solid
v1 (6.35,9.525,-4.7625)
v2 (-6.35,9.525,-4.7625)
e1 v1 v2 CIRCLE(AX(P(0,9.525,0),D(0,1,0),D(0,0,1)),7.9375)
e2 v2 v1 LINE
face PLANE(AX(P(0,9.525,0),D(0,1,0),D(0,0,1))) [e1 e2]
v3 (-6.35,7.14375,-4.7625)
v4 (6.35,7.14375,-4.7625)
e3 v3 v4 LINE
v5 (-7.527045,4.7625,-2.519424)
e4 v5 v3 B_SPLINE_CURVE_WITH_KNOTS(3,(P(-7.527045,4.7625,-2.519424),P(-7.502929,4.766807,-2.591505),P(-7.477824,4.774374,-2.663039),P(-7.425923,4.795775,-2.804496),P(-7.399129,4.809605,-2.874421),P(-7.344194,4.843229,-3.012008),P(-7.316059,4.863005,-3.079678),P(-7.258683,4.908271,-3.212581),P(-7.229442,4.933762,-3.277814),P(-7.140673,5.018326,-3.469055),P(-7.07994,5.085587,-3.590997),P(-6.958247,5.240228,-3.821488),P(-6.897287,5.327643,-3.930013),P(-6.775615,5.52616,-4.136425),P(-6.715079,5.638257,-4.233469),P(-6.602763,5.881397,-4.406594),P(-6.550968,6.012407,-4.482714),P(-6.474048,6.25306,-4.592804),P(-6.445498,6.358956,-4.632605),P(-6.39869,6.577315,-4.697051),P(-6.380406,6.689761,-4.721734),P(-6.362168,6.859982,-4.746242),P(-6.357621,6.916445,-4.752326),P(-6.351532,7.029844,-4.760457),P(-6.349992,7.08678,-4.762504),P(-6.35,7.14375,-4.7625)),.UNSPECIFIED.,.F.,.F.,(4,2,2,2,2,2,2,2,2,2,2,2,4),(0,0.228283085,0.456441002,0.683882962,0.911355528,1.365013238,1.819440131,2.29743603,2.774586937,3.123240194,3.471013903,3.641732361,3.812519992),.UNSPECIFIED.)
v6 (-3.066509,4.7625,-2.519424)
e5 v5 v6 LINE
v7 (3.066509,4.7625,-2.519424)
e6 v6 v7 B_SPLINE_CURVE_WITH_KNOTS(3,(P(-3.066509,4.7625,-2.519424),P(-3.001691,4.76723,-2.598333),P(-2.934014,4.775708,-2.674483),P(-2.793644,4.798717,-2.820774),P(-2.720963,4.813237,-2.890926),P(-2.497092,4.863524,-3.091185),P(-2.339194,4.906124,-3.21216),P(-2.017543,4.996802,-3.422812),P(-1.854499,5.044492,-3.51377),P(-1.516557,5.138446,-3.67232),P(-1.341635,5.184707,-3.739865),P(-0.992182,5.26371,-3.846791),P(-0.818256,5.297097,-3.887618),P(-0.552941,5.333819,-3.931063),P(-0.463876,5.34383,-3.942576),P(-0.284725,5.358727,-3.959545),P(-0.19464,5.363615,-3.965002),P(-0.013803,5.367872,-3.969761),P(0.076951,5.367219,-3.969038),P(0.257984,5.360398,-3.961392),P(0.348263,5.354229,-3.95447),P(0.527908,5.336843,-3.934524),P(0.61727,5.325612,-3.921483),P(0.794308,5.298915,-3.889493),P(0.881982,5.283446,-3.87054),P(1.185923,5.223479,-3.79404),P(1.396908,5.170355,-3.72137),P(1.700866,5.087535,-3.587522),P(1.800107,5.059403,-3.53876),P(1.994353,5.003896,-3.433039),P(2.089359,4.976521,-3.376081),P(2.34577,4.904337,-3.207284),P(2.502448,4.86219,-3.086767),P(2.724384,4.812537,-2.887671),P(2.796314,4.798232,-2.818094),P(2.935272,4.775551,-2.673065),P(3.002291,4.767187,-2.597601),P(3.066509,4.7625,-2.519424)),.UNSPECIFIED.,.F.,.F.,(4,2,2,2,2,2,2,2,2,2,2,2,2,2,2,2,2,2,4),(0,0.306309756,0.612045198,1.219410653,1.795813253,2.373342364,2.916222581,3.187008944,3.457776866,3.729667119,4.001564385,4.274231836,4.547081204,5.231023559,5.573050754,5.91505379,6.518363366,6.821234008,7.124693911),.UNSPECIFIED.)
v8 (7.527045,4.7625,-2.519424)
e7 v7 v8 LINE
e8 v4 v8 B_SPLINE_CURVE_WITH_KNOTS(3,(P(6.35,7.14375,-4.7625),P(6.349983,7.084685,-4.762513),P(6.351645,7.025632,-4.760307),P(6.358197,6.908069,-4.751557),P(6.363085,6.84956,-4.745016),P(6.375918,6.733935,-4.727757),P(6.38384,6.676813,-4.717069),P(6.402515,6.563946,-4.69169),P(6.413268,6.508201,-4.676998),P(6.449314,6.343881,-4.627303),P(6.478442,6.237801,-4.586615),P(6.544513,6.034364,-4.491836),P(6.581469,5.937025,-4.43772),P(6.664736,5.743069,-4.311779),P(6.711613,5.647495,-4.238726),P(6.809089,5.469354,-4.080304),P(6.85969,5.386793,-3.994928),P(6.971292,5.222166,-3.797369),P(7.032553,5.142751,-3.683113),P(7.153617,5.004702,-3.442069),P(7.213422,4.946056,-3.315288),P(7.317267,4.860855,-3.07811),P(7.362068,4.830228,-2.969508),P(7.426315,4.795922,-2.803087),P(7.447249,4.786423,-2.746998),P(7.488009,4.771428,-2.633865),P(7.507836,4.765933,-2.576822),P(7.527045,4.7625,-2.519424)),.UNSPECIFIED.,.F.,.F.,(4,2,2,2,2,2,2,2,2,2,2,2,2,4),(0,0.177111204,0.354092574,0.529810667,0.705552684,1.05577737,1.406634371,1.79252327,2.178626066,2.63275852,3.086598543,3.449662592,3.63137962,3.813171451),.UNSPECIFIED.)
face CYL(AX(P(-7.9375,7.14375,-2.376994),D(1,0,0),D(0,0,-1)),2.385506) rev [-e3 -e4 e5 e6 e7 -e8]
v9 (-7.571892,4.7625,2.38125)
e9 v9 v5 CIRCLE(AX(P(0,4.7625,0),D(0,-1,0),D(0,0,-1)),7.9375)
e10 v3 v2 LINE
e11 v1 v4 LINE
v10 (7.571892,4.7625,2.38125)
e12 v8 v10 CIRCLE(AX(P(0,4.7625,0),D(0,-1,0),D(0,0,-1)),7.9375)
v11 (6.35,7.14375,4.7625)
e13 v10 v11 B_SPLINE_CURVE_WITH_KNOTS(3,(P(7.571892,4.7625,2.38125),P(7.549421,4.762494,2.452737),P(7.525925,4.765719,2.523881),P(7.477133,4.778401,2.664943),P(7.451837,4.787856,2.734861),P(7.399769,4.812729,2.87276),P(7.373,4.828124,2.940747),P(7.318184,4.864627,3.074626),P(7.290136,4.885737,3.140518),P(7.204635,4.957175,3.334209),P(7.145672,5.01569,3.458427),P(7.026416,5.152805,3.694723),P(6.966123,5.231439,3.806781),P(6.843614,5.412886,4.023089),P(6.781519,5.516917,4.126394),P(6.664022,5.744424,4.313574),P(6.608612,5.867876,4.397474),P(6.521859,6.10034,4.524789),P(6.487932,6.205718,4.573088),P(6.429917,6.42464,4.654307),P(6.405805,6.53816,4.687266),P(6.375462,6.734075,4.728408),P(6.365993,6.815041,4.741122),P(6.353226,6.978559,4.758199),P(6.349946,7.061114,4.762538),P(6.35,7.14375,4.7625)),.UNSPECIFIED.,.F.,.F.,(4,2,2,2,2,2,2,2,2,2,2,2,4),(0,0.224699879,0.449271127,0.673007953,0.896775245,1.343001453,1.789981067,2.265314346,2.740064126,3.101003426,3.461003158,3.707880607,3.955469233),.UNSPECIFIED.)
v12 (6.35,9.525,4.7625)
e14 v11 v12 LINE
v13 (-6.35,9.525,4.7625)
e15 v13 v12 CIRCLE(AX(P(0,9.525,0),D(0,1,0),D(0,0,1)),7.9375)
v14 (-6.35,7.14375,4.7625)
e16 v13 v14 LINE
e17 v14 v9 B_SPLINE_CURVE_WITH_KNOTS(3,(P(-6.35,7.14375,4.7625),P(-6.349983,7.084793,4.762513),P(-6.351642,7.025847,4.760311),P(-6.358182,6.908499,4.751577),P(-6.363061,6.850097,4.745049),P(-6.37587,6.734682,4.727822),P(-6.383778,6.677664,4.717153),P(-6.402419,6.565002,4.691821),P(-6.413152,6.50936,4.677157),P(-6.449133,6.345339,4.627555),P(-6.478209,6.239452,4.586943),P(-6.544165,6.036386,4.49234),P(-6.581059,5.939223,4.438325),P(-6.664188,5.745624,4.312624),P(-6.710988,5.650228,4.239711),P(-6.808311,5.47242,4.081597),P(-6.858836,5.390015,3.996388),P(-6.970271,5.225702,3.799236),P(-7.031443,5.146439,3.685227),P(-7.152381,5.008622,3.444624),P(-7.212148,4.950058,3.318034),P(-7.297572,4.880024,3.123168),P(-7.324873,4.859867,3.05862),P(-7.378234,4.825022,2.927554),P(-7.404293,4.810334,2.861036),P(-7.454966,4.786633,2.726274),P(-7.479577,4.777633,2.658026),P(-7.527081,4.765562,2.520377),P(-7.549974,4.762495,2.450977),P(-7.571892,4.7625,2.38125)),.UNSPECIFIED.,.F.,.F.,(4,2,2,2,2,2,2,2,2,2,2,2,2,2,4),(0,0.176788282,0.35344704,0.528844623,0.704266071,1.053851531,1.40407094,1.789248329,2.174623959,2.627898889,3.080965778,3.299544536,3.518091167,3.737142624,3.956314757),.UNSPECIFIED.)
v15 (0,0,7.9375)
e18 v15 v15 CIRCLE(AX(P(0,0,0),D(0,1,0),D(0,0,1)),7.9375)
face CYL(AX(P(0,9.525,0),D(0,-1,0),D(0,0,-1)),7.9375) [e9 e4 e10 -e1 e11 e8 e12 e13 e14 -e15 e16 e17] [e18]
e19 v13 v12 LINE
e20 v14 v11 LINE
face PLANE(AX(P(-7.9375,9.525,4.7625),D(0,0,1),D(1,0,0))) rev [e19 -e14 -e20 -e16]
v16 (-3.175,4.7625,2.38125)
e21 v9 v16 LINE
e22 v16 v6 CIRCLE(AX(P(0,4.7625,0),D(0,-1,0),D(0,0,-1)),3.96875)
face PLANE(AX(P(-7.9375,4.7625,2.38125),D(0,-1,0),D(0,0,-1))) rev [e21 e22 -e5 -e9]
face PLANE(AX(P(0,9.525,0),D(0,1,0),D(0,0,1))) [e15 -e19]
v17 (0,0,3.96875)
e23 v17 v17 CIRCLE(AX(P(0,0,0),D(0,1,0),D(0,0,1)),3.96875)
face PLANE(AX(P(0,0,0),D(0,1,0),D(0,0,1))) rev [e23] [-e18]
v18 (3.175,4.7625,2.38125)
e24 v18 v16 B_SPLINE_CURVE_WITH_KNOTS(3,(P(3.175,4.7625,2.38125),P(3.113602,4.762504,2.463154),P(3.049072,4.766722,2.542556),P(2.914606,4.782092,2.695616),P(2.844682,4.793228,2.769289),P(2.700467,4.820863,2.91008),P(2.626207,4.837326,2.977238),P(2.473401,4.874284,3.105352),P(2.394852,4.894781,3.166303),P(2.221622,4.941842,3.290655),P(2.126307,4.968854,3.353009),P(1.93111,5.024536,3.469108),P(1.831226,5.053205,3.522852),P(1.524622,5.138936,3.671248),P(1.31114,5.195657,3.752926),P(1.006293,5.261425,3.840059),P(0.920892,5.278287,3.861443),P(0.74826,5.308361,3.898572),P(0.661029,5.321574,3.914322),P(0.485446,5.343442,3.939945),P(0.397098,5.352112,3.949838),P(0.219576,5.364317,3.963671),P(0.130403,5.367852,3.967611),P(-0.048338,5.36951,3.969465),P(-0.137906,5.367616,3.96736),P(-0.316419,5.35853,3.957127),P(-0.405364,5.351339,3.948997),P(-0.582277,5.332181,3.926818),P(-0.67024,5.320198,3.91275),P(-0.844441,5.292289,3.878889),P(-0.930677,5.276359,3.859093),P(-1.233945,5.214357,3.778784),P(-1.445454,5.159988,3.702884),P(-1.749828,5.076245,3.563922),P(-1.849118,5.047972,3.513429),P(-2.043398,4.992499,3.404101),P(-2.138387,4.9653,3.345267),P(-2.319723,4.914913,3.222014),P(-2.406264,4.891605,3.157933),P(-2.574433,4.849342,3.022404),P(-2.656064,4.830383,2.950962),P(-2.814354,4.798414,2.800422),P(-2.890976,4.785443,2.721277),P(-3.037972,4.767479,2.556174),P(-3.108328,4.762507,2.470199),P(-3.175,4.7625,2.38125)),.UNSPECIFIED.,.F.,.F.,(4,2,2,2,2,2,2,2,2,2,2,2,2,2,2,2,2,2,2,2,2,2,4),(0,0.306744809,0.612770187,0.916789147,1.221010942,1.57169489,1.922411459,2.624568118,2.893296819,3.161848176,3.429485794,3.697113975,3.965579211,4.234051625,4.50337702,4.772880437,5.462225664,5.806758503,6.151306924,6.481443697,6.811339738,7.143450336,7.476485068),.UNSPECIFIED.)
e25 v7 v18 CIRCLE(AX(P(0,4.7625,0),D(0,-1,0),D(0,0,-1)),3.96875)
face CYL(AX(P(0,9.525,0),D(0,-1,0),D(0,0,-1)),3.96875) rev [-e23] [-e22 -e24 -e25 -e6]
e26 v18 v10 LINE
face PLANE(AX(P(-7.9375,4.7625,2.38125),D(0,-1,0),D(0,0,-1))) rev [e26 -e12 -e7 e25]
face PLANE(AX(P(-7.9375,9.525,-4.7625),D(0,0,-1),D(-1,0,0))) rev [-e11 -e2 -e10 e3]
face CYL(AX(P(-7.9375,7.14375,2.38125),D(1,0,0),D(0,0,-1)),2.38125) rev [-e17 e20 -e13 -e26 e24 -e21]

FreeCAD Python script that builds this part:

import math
import FreeCAD as App
import Part
import Sketcher
from FreeCAD import Vector
Q = App.Units.Quantity

doc = App.newDocument("Part")
body = doc.addObject("PartDesign::Body", "Body")

# Sketch on XZ plane
sketch1 = doc.addObject("Sketcher::SketchObject", "Sketch")
body.addObject(sketch1)
sketch1.AttachmentSupport = (doc.XZ_Plane, [""])
sketch1.MapMode = "FlatFace"
sketch1.addGeometry([
    Part.Circle(Vector(0, 0, 0), Vector(0, 0, 1), 7.9375),
    Part.Circle(Vector(0, 0, 0), Vector(0, 0, 1), 3.96875),
], False)
sketch1.addConstraint([
    Sketcher.Constraint("Coincident", 0, 3, -1, 1),
    Sketcher.Constraint("Coincident", 1, 3, -1, 1),
    Sketcher.Constraint("Diameter", 0, Q("0.625 in")),
    Sketcher.Constraint("Diameter", 1, Q("0.3125 in")),
])
pad1 = doc.addObject("PartDesign::Pad", "Pad")
body.addObject(pad1)
pad1.Profile = sketch1
pad1.Length = Q("0.375 in")
pad1.Reversed = True

# Sketch on YZ plane
sketch2 = doc.addObject("Sketcher::SketchObject", "Sketch001")
body.addObject(sketch2)
sketch2.AttachmentSupport = (doc.YZ_Plane, [""])
sketch2.MapMode = "FlatFace"
sketch2.addGeometry([
    Part.LineSegment(Vector(9.525, -4.7625, 0), Vector(9.525, 4.7625, 0)),  # 0
    Part.LineSegment(Vector(9.525, 4.7625, 0), Vector(7.14375, 4.7625, 0)),  # 1
    Part.ArcOfCircle(Part.Circle(Vector(7.14375, 2.38125, 0), Vector(0, 0, 1), 2.38125), math.radians(90), math.radians(180)),  # 2
    Part.LineSegment(Vector(4.7625, 2.38125, 0), Vector(4.7625, -2.519424, 0)),  # 3
    Part.ArcOfCircle(Part.Circle(Vector(7.14375, -2.376994, 0), Vector(0, 0, 1), 2.385506), math.radians(-176.577043), math.radians(-90)),  # 4
    Part.LineSegment(Vector(7.14375, -4.7625, 0), Vector(9.525, -4.7625, 0)),  # 5
], False)
sketch2.addConstraint([
    Sketcher.Constraint("Coincident", 0, 2, 1, 1),
    Sketcher.Constraint("Tangent", 1, 2, 2, 1),
    Sketcher.Constraint("Tangent", 2, 2, 3, 1),
    Sketcher.Constraint("Coincident", 3, 2, 4, 1),
    Sketcher.Constraint("Tangent", 4, 2, 5, 1),
    Sketcher.Constraint("Coincident", 5, 2, 0, 1),
    Sketcher.Constraint("Vertical", 0),
    Sketcher.Constraint("Horizontal", 1),
    Sketcher.Constraint("Vertical", 3),
    Sketcher.Constraint("Horizontal", 5),
    Sketcher.Constraint("Symmetric", 1, 2, 4, 2, -1),
    Sketcher.Constraint("Radius", 2, Q("0.09375 in")),
    Sketcher.Constraint("DistanceX", 1, 2, 1, 1, Q("0.09375 in")),
    Sketcher.Constraint("DistanceY", 0, 1, 0, 2, Q("0.375 in")),
    Sketcher.Constraint("DistanceX", -1, 1, 2, 3, Q("0.28125 in")),
    Sketcher.Constraint("Radius", 4, Q("2.385506 mm")),
])
pocket1 = doc.addObject("PartDesign::Pocket", "Pocket")
body.addObject(pocket1)
pocket1.Profile = sketch2
pocket1.Type = "ThroughAll"
pocket1.Midplane = True

doc.recompute()
